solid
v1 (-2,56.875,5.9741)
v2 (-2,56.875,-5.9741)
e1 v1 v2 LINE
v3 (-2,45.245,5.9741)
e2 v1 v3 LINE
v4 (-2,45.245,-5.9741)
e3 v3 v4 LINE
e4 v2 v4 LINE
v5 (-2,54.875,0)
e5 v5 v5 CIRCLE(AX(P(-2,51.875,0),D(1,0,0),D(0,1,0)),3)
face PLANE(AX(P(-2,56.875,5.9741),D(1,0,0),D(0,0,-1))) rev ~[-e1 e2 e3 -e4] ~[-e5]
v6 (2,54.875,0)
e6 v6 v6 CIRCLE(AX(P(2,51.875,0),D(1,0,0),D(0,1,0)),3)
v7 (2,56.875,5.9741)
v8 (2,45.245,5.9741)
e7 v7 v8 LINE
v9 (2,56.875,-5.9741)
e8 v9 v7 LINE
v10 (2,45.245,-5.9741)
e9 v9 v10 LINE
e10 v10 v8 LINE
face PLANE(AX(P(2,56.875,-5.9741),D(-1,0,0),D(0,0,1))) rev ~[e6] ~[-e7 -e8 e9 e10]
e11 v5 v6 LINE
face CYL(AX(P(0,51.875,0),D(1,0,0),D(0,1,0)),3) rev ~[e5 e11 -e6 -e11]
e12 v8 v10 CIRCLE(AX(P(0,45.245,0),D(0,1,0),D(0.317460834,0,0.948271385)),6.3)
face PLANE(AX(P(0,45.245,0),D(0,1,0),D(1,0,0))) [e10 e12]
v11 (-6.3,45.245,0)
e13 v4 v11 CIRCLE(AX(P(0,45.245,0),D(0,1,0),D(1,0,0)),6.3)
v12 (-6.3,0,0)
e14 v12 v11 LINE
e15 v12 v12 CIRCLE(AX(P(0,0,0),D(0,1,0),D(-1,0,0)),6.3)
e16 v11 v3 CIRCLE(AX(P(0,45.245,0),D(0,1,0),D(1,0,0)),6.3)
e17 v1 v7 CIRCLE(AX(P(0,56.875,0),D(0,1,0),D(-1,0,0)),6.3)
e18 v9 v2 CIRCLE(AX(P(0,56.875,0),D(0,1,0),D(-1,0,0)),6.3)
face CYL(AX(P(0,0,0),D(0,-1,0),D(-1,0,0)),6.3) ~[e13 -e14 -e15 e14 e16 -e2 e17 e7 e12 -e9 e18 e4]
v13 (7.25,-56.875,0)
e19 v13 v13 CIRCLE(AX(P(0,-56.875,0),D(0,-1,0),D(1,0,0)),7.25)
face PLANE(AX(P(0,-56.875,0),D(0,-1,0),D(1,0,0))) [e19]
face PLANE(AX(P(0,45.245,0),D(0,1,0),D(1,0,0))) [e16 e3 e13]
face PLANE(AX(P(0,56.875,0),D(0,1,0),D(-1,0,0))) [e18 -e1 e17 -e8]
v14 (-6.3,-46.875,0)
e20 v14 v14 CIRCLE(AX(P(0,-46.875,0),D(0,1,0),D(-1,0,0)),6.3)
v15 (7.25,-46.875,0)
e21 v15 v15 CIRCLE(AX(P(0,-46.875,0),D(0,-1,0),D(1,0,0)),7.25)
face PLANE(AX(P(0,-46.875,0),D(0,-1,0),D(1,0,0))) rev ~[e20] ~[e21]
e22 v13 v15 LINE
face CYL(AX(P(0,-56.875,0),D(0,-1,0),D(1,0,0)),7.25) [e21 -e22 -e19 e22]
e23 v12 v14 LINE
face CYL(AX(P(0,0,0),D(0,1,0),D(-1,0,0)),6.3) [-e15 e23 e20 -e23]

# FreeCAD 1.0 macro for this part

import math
import FreeCAD as App
import Part
import Sketcher

V = App.Vector
Q = App.Units.Quantity

doc = App.newDocument("Part")
body = doc.addObject("PartDesign::Body", "Body")

# Sketch on XZ plane
sketch1 = body.newObject("Sketcher::SketchObject", "Sketch")
sketch1.AttachmentSupport = (doc.getObject("XZ_Plane"), [""])
sketch1.MapMode = "FlatFace"
sketch1.addGeometry(Part.Circle(V(0, 0, 0), V(0, 0, 1), 6), False)
sketch1.addConstraint(Sketcher.Constraint("Coincident", 0, 3, -1, 1))
sketch1.addConstraint(Sketcher.Constraint("Diameter", 0, Q("12.6 mm")))
pad1 = body.newObject("PartDesign::Pad", "Pad")
pad1.Profile = sketch1
pad1.Length = 113.75
pad1.Midplane = True

# Sketch on XZ plane
sketch2 = body.newObject("Sketcher::SketchObject", "Sketch001")
sketch2.AttachmentSupport = (doc.getObject("XZ_Plane"), [""])
sketch2.MapMode = "FlatFace"
sketch2.AttachmentOffset = App.Placement(V(0, 0, -56.875), App.Rotation())
sketch2.addGeometry(Part.ArcOfCircle(Part.Circle(V(0, 0, 0), V(0, 0, 1), 6), math.radians(-71), math.radians(71)), False)
sketch2.addGeometry(Part.LineSegment(V(2, 6, 0), V(2, -6, 0)), False)
sketch2.addGeometry(Part.LineSegment(V(-2, 6, 0), V(-2, -6, 0)), False)
sketch2.addGeometry(Part.ArcOfCircle(Part.Circle(V(0, 0, 0), V(0, 0, 1), 6), math.radians(109), math.radians(251)), False)
sketch2.addConstraint(Sketcher.Constraint("Coincident", 0, 1, 1, 2))
sketch2.addConstraint(Sketcher.Constraint("Coincident", 1, 1, 0, 2))
sketch2.addConstraint(Sketcher.Constraint("Coincident", 2, 1, 3, 1))
sketch2.addConstraint(Sketcher.Constraint("Coincident", 3, 2, 2, 2))
sketch2.addConstraint(Sketcher.Constraint("Vertical", 1))
sketch2.addConstraint(Sketcher.Constraint("Vertical", 2))
sketch2.addConstraint(Sketcher.Constraint("Coincident", 0, 3, -1, 1))
sketch2.addConstraint(Sketcher.Constraint("Coincident", 3, 3, -1, 1))
sketch2.addConstraint(Sketcher.Constraint("Equal", 0, 3))
sketch2.addConstraint(Sketcher.Constraint("Horizontal", 1, 1, 2, 1))
sketch2.addConstraint(Sketcher.Constraint("DistanceX", 2, 1, 1, 1, Q("4 mm")))
sketch2.addConstraint(Sketcher.Constraint("Radius", 0, Q("6.3 mm")))
pocket1 = body.newObject("PartDesign::Pocket", "Pocket")
pocket1.Profile = sketch2
pocket1.Length = 11.63
pocket1.Reversed = True

# Sketch on YZ plane
sketch3 = body.newObject("Sketcher::SketchObject", "Sketch002")
sketch3.AttachmentSupport = (doc.getObject("YZ_Plane"), [""])
sketch3.MapMode = "FlatFace"
sketch3.addGeometry(Part.Circle(V(51.9, 0, 0), V(0, 0, 1), 3), False)
sketch3.addConstraint(Sketcher.Constraint("PointOnObject", 0, 3, -1))
sketch3.addConstraint(Sketcher.Constraint("Diameter", 0, Q("6 mm")))
sketch3.addConstraint(Sketcher.Constraint("DistanceX", -1, 1, 0, 3, Q("51.875 mm")))
pocket2 = body.newObject("PartDesign::Pocket", "Pocket001")
pocket2.Profile = sketch3
pocket2.Length = 11.63
pocket2.Midplane = True

# Sketch on XZ plane
sketch4 = body.newObject("Sketcher::SketchObject", "Sketch003")
sketch4.AttachmentSupport = (doc.getObject("XZ_Plane"), [""])
sketch4.MapMode = "FlatFace"
sketch4.AttachmentOffset = App.Placement(V(0, 0, 56.875), App.Rotation())
sketch4.addGeometry(Part.Circle(V(0, 0, 0), V(0, 0, 1), 7), False)
sketch4.addConstraint(Sketcher.Constraint("Coincident", 0, 3, -1, 1))
sketch4.addConstraint(Sketcher.Constraint("Diameter", 0, Q("14.5 mm")))
pad2 = body.newObject("PartDesign::Pad", "Pad001")
pad2.Profile = sketch4
pad2.Length = 10
pad2.Reversed = True

doc.recompute()
